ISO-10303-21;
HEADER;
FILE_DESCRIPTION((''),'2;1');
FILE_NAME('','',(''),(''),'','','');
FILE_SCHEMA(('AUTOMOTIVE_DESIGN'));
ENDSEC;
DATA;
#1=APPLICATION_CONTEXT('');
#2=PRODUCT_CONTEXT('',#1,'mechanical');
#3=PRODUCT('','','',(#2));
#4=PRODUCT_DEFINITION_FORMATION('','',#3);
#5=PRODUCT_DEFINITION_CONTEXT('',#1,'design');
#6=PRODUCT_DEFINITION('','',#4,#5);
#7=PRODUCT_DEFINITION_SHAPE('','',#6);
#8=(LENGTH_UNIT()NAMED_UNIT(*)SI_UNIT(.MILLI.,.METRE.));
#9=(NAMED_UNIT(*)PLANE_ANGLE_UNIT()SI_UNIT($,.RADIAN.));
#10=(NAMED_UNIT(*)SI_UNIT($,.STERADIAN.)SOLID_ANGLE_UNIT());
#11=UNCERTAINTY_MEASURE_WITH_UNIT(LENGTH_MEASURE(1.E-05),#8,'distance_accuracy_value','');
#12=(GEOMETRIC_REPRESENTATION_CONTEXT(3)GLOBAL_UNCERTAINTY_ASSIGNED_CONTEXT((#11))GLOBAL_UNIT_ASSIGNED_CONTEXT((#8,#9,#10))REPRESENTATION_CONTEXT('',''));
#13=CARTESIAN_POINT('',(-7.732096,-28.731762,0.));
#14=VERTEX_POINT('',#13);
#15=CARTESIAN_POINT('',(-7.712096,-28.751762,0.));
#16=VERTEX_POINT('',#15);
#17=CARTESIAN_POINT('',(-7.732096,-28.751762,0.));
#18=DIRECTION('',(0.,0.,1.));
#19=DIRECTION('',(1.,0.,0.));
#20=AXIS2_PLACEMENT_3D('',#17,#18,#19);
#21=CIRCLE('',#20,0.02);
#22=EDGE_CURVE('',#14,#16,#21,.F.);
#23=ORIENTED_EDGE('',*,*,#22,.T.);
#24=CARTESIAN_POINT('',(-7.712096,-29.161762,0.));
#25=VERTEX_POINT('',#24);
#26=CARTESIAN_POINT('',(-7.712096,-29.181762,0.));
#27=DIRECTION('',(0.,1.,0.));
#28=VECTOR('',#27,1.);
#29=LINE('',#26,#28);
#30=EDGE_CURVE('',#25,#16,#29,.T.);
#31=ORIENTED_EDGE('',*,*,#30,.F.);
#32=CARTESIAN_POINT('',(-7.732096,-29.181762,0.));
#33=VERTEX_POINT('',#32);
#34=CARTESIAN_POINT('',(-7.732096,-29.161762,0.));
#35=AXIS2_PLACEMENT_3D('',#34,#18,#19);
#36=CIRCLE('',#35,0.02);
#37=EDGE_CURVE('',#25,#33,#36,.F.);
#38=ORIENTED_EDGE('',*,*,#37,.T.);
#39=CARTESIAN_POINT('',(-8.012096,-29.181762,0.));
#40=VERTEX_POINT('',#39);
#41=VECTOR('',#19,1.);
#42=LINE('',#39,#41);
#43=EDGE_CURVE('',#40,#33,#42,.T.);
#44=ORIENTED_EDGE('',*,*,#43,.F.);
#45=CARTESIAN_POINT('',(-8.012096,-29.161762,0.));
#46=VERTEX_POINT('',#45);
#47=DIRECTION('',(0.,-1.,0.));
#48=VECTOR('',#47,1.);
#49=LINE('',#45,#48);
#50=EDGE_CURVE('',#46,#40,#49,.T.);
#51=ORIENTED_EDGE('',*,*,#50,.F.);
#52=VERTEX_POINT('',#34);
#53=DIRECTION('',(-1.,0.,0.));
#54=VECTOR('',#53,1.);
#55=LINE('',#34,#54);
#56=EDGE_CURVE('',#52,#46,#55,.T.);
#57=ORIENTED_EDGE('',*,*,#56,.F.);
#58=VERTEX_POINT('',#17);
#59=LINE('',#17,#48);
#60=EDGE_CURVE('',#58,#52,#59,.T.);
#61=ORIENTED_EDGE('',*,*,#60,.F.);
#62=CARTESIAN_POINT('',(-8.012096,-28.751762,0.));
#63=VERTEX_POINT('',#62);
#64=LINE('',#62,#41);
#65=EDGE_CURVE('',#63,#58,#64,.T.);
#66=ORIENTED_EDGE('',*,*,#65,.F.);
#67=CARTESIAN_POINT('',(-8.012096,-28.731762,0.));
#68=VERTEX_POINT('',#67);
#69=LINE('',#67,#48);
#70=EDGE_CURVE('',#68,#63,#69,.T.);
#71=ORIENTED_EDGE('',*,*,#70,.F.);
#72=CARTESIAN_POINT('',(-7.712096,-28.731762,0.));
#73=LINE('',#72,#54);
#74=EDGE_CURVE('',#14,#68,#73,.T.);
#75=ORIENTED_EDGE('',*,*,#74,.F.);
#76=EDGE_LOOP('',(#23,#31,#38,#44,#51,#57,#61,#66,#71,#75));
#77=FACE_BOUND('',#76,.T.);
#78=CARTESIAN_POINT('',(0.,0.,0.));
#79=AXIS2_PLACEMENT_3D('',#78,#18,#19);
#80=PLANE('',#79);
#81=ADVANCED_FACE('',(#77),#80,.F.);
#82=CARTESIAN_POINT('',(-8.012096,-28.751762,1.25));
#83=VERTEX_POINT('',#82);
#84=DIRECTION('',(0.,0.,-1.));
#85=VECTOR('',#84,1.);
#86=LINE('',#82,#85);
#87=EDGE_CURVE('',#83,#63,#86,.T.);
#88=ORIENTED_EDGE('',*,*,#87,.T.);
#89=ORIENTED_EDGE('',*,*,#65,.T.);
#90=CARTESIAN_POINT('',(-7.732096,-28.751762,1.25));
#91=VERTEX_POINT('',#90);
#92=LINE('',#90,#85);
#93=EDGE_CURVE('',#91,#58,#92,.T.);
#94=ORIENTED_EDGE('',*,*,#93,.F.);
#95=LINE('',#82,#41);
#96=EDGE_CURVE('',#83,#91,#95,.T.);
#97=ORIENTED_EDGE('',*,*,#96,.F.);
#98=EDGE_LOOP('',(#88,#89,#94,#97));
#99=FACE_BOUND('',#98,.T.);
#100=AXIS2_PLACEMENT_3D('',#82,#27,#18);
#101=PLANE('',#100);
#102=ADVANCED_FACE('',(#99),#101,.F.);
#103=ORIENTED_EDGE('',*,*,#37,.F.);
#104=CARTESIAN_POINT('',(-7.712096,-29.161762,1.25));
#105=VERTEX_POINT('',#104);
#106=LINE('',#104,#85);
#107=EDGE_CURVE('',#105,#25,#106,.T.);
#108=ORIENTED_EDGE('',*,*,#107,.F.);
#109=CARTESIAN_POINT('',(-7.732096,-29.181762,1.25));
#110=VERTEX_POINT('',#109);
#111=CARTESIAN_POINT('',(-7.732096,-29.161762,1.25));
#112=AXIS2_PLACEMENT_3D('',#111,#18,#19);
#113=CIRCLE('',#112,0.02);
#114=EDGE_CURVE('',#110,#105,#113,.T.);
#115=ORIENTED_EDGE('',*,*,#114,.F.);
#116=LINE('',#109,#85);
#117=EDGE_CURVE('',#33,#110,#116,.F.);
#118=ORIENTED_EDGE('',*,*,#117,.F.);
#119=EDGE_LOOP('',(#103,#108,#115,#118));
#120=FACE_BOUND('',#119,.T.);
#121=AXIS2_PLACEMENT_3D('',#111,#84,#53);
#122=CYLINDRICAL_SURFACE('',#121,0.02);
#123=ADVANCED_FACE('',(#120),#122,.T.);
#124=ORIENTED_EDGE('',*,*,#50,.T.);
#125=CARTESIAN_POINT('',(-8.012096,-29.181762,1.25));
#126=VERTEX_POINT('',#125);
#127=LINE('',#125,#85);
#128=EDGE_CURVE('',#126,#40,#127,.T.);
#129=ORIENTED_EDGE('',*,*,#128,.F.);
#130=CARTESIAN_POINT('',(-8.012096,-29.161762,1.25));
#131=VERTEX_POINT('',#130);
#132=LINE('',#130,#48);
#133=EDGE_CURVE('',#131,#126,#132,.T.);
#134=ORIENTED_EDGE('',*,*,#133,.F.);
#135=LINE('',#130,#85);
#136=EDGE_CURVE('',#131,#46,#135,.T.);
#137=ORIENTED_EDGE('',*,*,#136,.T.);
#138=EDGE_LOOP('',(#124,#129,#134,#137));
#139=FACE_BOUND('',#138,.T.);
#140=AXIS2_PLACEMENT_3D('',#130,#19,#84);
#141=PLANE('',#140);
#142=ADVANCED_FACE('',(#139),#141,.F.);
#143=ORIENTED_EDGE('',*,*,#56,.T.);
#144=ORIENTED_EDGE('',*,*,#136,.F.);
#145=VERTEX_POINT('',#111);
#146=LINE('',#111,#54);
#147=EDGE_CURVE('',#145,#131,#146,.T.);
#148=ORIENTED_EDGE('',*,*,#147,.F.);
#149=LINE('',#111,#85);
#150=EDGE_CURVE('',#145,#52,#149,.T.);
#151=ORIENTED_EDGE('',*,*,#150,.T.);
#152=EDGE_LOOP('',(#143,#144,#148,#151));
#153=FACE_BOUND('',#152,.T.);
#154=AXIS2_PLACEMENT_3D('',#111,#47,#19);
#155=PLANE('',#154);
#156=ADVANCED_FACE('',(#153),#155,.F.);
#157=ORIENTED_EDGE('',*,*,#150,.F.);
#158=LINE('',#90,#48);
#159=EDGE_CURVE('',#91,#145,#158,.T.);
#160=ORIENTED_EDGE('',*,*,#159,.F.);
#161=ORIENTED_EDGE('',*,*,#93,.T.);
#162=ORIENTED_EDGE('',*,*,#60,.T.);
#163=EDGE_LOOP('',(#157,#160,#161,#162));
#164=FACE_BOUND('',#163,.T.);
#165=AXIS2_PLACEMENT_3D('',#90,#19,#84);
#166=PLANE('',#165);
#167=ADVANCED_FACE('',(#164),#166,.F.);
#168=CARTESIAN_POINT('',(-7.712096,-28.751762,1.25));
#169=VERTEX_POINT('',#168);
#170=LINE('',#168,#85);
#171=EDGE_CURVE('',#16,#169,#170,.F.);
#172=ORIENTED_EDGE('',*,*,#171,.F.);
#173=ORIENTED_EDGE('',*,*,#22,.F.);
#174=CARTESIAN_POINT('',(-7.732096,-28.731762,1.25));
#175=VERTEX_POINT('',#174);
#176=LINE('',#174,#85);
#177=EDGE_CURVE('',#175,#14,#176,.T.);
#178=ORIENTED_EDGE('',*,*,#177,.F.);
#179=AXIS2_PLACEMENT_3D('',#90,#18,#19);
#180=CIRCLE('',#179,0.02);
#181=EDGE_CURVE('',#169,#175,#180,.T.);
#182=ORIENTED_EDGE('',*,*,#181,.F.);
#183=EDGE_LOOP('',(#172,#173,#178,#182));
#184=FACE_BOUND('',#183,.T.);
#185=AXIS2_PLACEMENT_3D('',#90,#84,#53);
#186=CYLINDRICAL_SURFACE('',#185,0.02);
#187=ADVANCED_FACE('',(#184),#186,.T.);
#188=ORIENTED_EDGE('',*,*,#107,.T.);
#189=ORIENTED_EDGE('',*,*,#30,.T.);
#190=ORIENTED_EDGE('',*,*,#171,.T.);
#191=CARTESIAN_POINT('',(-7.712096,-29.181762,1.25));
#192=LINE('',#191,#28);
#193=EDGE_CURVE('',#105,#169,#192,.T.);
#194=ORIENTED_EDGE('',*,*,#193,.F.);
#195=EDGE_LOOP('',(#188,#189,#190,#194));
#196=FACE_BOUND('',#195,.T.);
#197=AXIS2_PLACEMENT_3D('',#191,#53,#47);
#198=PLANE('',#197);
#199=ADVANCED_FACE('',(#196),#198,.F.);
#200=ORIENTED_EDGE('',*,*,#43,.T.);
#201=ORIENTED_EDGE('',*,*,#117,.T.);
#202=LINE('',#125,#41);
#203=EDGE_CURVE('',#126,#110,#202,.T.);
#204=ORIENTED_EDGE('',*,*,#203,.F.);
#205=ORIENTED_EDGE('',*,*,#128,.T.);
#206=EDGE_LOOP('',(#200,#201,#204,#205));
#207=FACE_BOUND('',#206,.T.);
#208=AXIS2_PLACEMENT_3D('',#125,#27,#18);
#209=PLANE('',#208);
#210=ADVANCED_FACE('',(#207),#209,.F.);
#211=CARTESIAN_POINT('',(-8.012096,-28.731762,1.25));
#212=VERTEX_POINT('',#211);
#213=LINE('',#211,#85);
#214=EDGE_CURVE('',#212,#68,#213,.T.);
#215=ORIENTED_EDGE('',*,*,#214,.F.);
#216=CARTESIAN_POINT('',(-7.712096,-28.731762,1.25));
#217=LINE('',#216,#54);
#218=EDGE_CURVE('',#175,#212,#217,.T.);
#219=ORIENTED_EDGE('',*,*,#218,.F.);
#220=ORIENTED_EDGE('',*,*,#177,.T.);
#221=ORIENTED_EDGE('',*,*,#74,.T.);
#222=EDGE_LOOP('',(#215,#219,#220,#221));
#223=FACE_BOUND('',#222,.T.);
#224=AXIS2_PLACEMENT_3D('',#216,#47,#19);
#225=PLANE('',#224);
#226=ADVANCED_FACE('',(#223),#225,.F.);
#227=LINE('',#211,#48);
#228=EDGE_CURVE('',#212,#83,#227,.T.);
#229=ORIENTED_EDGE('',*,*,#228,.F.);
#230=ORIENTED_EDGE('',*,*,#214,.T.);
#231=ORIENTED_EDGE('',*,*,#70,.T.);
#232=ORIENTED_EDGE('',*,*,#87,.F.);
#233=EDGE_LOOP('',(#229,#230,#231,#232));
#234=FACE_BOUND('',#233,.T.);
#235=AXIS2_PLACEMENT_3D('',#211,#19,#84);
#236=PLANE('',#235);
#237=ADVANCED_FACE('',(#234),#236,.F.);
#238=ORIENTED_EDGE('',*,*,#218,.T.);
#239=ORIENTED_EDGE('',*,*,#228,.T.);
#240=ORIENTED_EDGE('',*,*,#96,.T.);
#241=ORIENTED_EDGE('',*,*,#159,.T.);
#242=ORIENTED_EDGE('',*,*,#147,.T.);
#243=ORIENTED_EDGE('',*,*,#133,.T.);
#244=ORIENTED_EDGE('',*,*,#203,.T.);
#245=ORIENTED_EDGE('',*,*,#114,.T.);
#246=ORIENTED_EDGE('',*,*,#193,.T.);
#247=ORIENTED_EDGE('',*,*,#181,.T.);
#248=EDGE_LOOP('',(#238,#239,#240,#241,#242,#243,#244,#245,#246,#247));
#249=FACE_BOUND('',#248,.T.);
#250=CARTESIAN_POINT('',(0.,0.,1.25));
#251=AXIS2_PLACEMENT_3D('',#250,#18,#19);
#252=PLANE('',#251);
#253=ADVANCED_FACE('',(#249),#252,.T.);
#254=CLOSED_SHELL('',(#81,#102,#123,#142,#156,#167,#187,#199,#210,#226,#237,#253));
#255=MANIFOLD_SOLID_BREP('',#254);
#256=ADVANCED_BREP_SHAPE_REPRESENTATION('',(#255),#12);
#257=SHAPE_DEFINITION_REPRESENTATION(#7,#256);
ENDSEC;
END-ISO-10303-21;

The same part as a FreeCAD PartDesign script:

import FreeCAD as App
import Part
import Sketcher


def edges_at(feature, points):
    """Names of the edges that pass closest to the given points."""
    edges = feature.Shape.Edges
    near = lambda p: min(range(len(edges)), key=lambda i: edges[i].distToShape(Part.Vertex(*p))[0])
    return sorted({f"Edge{near(p) + 1}" for p in points})


def add_polygon(sketch, points):
    """Adds a closed chain of lines whose ends are joined by coincident constraints."""
    first, n = sketch.GeometryCount, len(points)
    for a, b in zip(points, points[1:] + points[:1]):
        sketch.addGeometry(Part.LineSegment(App.Vector(*a, 0), App.Vector(*b, 0)), False)
    for i in range(n):
        sketch.addConstraint(Sketcher.Constraint("Coincident", first + i, 2, first + (i + 1) % n, 1))

doc = App.newDocument("Part")
params = doc.addObject("Spreadsheet::Sheet", "Params")
for row, (alias, value) in enumerate([
    ("sketch1_width", "0.3 mm"),
    ("sketch1_width2", "0.28 mm"),
    ("sketch1_height", "0.41 mm"),
    ("sketch1_height2", "0.02 mm"),
    ("pad1_length", "1.25 mm"),
    ("fillet_radius", "0.02 mm"),
    ("fillet2_radius", "0.02 mm"),
], start=1):
    params.set(f"A{row}", alias)
    params.set(f"B{row}", "=" + value)
    params.setAlias(f"B{row}", alias)

body = doc.addObject("PartDesign::Body", "Body")

# Sketch on XY plane
sketch1 = body.newObject("Sketcher::SketchObject", "Sketch")
sketch1.AttachmentSupport = (doc.getObject("XY_Plane"), [""])
sketch1.MapMode = "FlatFace"
add_polygon(sketch1, [(-8.012, -28.752), (-7.732, -28.752), (-7.732, -29.162), (-8.012, -29.162), (-8.012, -29.182), (-7.712, -29.182), (-7.712, -28.732), (-8.012, -28.732)])  # lines 0-7
sketch1.addConstraint(Sketcher.Constraint("Horizontal", 0))
sketch1.addConstraint(Sketcher.Constraint("Vertical", 1))
sketch1.addConstraint(Sketcher.Constraint("Horizontal", 2))
sketch1.addConstraint(Sketcher.Constraint("Vertical", 3))
sketch1.addConstraint(Sketcher.Constraint("Horizontal", 4))
sketch1.addConstraint(Sketcher.Constraint("Vertical", 5))
sketch1.addConstraint(Sketcher.Constraint("Horizontal", 6))
sketch1.addConstraint(Sketcher.Constraint("Vertical", 7))
sketch1.addConstraint(Sketcher.Constraint("Vertical", 3, 2, 6, 2))
sketch1.addConstraint(Sketcher.Constraint("Equal", 3, 7))
sketch1.addConstraint(Sketcher.Constraint("DistanceX", 4, 1, 4, 2, 0.3))
sketch1.addConstraint(Sketcher.Constraint("DistanceX", 0, 1, 0, 2, 0.28))
sketch1.addConstraint(Sketcher.Constraint("DistanceY", 1, 2, 1, 1, 0.41))
sketch1.addConstraint(Sketcher.Constraint("DistanceY", 3, 2, 3, 1, 0.02))
sketch1.addConstraint(Sketcher.Constraint("DistanceY", 0, 2, -1, 1, 28.751762))
sketch1.addConstraint(Sketcher.Constraint("DistanceX", 0, 2, -1, 1, 7.732096))
sketch1.setExpression("Constraints[18]", "Params.sketch1_width")
sketch1.setExpression("Constraints[19]", "Params.sketch1_width2")
sketch1.setExpression("Constraints[20]", "Params.sketch1_height")
sketch1.setExpression("Constraints[21]", "Params.sketch1_height2")
pad1 = body.newObject("PartDesign::Pad", "Pad")
pad1.Profile = sketch1
pad1.setExpression("Length", "Params.pad1_length")
doc.recompute()

fillet = body.newObject("PartDesign::Fillet", "Fillet")
fillet.Base = (pad1, edges_at(pad1, [(-7.712, -28.732, 0.625)]))
fillet.setExpression("Radius", "Params.fillet_radius")
doc.recompute()

fillet2 = body.newObject("PartDesign::Fillet", "Fillet001")
fillet2.Base = (fillet, edges_at(fillet, [(-7.712, -29.182, 0.625)]))
fillet2.setExpression("Radius", "Params.fillet2_radius")

doc.recompute()
